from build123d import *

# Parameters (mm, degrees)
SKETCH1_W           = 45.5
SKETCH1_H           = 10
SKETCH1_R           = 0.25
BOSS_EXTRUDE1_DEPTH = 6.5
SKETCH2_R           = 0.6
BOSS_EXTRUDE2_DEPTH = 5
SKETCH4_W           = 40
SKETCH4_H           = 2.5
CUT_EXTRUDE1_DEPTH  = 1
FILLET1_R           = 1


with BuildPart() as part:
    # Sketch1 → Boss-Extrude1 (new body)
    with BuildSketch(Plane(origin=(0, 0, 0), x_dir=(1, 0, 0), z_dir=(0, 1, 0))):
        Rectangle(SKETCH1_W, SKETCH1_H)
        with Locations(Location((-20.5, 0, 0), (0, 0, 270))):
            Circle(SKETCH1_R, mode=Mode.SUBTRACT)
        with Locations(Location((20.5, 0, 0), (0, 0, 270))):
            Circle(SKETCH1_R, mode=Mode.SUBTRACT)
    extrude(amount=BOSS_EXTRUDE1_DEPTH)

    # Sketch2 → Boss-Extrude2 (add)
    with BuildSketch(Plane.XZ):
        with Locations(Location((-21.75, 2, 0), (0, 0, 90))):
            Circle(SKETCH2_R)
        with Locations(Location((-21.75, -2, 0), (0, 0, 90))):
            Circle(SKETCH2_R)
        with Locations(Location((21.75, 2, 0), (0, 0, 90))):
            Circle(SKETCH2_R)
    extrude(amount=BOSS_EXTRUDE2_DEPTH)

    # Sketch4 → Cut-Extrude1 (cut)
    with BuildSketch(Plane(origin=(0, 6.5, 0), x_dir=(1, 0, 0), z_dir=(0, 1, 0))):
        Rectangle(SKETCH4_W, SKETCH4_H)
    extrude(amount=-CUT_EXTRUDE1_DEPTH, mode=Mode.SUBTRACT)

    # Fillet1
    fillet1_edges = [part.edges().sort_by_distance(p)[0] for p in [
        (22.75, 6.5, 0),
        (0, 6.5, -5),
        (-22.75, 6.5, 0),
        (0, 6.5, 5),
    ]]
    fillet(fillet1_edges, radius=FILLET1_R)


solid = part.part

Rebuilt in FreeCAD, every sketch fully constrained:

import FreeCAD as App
import Part
import Sketcher
from FreeCAD import Vector


def edges_at(feature, points):
    """Names of the edges that pass closest to the given points."""
    edges = feature.Shape.Edges
    near = lambda p: min(range(len(edges)), key=lambda i: edges[i].distToShape(Part.Vertex(*p))[0])
    return sorted({f"Edge{near(p) + 1}" for p in points})


def add_polygon(sketch, points):
    """Adds a closed chain of lines whose ends are joined by coincident constraints."""
    first, n = sketch.GeometryCount, len(points)
    for a, b in zip(points, points[1:] + points[:1]):
        sketch.addGeometry(Part.LineSegment(App.Vector(*a, 0), App.Vector(*b, 0)), False)
    for i in range(n):
        sketch.addConstraint(Sketcher.Constraint("Coincident", first + i, 2, first + (i + 1) % n, 1))

doc = App.newDocument("Part")
body = doc.addObject("PartDesign::Body", "Body")

# Sketch on XZ plane
sketch1 = body.newObject("Sketcher::SketchObject", "Sketch")
sketch1.AttachmentSupport = (doc.getObject("XZ_Plane"), [""])
sketch1.MapMode = "FlatFace"
add_polygon(sketch1, [(-22.75, -5), (-22.75, 5), (22.75, 5), (22.75, -5)])  # lines 0-3
sketch1.addGeometry(Part.Circle(Vector(-20.5, 0, 0), Vector(0, 0, 1), 0.25), False)  # 4
sketch1.addGeometry(Part.Circle(Vector(20.5, 0, 0), Vector(0, 0, 1), 0.25), False)  # 5
sketch1.addConstraint([
    Sketcher.Constraint("Vertical", 0),
    Sketcher.Constraint("Horizontal", 1),
    Sketcher.Constraint("Vertical", 2),
    Sketcher.Constraint("Horizontal", 3),
    Sketcher.Constraint("Equal", 4, 5),
    Sketcher.Constraint("Symmetric", 4, 3, 5, 3, -1, 1),
    Sketcher.Constraint("Symmetric", 0, 2, 2, 2, -1, 1),
    Sketcher.Constraint("PointOnObject", 4, 3, -1),
    Sketcher.Constraint("Diameter", 4, 0.5),
    Sketcher.Constraint("DistanceY", 0, 1, 0, 2, 10.0),
    Sketcher.Constraint("DistanceX", 1, 1, 1, 2, 45.5),
    Sketcher.Constraint("DistanceX", 4, 3, 5, 3, 41.0),
])
pad1 = body.newObject("PartDesign::Pad", "Pad")
pad1.Profile = sketch1
pad1.Length = 6.5
pad1.Reversed = True

# Sketch on XZ plane
sketch2 = body.newObject("Sketcher::SketchObject", "Sketch001")
sketch2.AttachmentSupport = (doc.getObject("XZ_Plane"), [""])
sketch2.MapMode = "FlatFace"
sketch2.addGeometry([
    Part.Circle(Vector(-21.8, 2, 0), Vector(0, 0, 1), 0.6),
    Part.Circle(Vector(-21.8, -2, 0), Vector(0, 0, 1), 0.6),
    Part.Circle(Vector(21.8, 2, 0), Vector(0, 0, 1), 0.6),
], False)
sketch2.addConstraint([
    Sketcher.Constraint("Equal", 0, 1),
    Sketcher.Constraint("Equal", 1, 2),
    Sketcher.Constraint("Symmetric", 1, 3, 2, 3, -1, 1),
    Sketcher.Constraint("Symmetric", 0, 3, 2, 3, -2),
    Sketcher.Constraint("Diameter", 0, 1.2),
    Sketcher.Constraint("DistanceY", -1, 1, 0, 3, 2.0),
    Sketcher.Constraint("DistanceX", 0, 3, 2, 3, 43.5),
])
pad2 = body.newObject("PartDesign::Pad", "Pad001")
pad2.Profile = sketch2
pad2.Length = 5

# Sketch on XZ plane
sketch3 = body.newObject("Sketcher::SketchObject", "Sketch002")
sketch3.AttachmentSupport = (doc.getObject("XZ_Plane"), [""])
sketch3.MapMode = "FlatFace"
sketch3.AttachmentOffset = App.Placement(Vector(0, 0, -6.5), App.Rotation())
add_polygon(sketch3, [(-20, -1.2), (-20, 1.2), (20, 1.2), (20, -1.2)])  # lines 0-3
sketch3.addConstraint([
    Sketcher.Constraint("Vertical", 0),
    Sketcher.Constraint("Horizontal", 1),
    Sketcher.Constraint("Vertical", 2),
    Sketcher.Constraint("Horizontal", 3),
    Sketcher.Constraint("Symmetric", 0, 2, 2, 2, -1, 1),
    Sketcher.Constraint("DistanceX", 1, 1, 1, 2, 40.0),
    Sketcher.Constraint("DistanceY", 0, 1, 0, 2, 2.5),
])
pocket1 = body.newObject("PartDesign::Pocket", "Pocket")
pocket1.Profile = sketch3
pocket1.Length = 1
pocket1.Reversed = True
doc.recompute()

fillet = body.newObject("PartDesign::Fillet", "Fillet")
fillet.Base = (pocket1, edges_at(pocket1, [
    (22.75, 6.5, 0),
    (0, 6.5, -5),
    (-22.75, 6.5, 0),
    (0, 6.5, 5),
]))
fillet.Radius = 1

doc.recompute()
